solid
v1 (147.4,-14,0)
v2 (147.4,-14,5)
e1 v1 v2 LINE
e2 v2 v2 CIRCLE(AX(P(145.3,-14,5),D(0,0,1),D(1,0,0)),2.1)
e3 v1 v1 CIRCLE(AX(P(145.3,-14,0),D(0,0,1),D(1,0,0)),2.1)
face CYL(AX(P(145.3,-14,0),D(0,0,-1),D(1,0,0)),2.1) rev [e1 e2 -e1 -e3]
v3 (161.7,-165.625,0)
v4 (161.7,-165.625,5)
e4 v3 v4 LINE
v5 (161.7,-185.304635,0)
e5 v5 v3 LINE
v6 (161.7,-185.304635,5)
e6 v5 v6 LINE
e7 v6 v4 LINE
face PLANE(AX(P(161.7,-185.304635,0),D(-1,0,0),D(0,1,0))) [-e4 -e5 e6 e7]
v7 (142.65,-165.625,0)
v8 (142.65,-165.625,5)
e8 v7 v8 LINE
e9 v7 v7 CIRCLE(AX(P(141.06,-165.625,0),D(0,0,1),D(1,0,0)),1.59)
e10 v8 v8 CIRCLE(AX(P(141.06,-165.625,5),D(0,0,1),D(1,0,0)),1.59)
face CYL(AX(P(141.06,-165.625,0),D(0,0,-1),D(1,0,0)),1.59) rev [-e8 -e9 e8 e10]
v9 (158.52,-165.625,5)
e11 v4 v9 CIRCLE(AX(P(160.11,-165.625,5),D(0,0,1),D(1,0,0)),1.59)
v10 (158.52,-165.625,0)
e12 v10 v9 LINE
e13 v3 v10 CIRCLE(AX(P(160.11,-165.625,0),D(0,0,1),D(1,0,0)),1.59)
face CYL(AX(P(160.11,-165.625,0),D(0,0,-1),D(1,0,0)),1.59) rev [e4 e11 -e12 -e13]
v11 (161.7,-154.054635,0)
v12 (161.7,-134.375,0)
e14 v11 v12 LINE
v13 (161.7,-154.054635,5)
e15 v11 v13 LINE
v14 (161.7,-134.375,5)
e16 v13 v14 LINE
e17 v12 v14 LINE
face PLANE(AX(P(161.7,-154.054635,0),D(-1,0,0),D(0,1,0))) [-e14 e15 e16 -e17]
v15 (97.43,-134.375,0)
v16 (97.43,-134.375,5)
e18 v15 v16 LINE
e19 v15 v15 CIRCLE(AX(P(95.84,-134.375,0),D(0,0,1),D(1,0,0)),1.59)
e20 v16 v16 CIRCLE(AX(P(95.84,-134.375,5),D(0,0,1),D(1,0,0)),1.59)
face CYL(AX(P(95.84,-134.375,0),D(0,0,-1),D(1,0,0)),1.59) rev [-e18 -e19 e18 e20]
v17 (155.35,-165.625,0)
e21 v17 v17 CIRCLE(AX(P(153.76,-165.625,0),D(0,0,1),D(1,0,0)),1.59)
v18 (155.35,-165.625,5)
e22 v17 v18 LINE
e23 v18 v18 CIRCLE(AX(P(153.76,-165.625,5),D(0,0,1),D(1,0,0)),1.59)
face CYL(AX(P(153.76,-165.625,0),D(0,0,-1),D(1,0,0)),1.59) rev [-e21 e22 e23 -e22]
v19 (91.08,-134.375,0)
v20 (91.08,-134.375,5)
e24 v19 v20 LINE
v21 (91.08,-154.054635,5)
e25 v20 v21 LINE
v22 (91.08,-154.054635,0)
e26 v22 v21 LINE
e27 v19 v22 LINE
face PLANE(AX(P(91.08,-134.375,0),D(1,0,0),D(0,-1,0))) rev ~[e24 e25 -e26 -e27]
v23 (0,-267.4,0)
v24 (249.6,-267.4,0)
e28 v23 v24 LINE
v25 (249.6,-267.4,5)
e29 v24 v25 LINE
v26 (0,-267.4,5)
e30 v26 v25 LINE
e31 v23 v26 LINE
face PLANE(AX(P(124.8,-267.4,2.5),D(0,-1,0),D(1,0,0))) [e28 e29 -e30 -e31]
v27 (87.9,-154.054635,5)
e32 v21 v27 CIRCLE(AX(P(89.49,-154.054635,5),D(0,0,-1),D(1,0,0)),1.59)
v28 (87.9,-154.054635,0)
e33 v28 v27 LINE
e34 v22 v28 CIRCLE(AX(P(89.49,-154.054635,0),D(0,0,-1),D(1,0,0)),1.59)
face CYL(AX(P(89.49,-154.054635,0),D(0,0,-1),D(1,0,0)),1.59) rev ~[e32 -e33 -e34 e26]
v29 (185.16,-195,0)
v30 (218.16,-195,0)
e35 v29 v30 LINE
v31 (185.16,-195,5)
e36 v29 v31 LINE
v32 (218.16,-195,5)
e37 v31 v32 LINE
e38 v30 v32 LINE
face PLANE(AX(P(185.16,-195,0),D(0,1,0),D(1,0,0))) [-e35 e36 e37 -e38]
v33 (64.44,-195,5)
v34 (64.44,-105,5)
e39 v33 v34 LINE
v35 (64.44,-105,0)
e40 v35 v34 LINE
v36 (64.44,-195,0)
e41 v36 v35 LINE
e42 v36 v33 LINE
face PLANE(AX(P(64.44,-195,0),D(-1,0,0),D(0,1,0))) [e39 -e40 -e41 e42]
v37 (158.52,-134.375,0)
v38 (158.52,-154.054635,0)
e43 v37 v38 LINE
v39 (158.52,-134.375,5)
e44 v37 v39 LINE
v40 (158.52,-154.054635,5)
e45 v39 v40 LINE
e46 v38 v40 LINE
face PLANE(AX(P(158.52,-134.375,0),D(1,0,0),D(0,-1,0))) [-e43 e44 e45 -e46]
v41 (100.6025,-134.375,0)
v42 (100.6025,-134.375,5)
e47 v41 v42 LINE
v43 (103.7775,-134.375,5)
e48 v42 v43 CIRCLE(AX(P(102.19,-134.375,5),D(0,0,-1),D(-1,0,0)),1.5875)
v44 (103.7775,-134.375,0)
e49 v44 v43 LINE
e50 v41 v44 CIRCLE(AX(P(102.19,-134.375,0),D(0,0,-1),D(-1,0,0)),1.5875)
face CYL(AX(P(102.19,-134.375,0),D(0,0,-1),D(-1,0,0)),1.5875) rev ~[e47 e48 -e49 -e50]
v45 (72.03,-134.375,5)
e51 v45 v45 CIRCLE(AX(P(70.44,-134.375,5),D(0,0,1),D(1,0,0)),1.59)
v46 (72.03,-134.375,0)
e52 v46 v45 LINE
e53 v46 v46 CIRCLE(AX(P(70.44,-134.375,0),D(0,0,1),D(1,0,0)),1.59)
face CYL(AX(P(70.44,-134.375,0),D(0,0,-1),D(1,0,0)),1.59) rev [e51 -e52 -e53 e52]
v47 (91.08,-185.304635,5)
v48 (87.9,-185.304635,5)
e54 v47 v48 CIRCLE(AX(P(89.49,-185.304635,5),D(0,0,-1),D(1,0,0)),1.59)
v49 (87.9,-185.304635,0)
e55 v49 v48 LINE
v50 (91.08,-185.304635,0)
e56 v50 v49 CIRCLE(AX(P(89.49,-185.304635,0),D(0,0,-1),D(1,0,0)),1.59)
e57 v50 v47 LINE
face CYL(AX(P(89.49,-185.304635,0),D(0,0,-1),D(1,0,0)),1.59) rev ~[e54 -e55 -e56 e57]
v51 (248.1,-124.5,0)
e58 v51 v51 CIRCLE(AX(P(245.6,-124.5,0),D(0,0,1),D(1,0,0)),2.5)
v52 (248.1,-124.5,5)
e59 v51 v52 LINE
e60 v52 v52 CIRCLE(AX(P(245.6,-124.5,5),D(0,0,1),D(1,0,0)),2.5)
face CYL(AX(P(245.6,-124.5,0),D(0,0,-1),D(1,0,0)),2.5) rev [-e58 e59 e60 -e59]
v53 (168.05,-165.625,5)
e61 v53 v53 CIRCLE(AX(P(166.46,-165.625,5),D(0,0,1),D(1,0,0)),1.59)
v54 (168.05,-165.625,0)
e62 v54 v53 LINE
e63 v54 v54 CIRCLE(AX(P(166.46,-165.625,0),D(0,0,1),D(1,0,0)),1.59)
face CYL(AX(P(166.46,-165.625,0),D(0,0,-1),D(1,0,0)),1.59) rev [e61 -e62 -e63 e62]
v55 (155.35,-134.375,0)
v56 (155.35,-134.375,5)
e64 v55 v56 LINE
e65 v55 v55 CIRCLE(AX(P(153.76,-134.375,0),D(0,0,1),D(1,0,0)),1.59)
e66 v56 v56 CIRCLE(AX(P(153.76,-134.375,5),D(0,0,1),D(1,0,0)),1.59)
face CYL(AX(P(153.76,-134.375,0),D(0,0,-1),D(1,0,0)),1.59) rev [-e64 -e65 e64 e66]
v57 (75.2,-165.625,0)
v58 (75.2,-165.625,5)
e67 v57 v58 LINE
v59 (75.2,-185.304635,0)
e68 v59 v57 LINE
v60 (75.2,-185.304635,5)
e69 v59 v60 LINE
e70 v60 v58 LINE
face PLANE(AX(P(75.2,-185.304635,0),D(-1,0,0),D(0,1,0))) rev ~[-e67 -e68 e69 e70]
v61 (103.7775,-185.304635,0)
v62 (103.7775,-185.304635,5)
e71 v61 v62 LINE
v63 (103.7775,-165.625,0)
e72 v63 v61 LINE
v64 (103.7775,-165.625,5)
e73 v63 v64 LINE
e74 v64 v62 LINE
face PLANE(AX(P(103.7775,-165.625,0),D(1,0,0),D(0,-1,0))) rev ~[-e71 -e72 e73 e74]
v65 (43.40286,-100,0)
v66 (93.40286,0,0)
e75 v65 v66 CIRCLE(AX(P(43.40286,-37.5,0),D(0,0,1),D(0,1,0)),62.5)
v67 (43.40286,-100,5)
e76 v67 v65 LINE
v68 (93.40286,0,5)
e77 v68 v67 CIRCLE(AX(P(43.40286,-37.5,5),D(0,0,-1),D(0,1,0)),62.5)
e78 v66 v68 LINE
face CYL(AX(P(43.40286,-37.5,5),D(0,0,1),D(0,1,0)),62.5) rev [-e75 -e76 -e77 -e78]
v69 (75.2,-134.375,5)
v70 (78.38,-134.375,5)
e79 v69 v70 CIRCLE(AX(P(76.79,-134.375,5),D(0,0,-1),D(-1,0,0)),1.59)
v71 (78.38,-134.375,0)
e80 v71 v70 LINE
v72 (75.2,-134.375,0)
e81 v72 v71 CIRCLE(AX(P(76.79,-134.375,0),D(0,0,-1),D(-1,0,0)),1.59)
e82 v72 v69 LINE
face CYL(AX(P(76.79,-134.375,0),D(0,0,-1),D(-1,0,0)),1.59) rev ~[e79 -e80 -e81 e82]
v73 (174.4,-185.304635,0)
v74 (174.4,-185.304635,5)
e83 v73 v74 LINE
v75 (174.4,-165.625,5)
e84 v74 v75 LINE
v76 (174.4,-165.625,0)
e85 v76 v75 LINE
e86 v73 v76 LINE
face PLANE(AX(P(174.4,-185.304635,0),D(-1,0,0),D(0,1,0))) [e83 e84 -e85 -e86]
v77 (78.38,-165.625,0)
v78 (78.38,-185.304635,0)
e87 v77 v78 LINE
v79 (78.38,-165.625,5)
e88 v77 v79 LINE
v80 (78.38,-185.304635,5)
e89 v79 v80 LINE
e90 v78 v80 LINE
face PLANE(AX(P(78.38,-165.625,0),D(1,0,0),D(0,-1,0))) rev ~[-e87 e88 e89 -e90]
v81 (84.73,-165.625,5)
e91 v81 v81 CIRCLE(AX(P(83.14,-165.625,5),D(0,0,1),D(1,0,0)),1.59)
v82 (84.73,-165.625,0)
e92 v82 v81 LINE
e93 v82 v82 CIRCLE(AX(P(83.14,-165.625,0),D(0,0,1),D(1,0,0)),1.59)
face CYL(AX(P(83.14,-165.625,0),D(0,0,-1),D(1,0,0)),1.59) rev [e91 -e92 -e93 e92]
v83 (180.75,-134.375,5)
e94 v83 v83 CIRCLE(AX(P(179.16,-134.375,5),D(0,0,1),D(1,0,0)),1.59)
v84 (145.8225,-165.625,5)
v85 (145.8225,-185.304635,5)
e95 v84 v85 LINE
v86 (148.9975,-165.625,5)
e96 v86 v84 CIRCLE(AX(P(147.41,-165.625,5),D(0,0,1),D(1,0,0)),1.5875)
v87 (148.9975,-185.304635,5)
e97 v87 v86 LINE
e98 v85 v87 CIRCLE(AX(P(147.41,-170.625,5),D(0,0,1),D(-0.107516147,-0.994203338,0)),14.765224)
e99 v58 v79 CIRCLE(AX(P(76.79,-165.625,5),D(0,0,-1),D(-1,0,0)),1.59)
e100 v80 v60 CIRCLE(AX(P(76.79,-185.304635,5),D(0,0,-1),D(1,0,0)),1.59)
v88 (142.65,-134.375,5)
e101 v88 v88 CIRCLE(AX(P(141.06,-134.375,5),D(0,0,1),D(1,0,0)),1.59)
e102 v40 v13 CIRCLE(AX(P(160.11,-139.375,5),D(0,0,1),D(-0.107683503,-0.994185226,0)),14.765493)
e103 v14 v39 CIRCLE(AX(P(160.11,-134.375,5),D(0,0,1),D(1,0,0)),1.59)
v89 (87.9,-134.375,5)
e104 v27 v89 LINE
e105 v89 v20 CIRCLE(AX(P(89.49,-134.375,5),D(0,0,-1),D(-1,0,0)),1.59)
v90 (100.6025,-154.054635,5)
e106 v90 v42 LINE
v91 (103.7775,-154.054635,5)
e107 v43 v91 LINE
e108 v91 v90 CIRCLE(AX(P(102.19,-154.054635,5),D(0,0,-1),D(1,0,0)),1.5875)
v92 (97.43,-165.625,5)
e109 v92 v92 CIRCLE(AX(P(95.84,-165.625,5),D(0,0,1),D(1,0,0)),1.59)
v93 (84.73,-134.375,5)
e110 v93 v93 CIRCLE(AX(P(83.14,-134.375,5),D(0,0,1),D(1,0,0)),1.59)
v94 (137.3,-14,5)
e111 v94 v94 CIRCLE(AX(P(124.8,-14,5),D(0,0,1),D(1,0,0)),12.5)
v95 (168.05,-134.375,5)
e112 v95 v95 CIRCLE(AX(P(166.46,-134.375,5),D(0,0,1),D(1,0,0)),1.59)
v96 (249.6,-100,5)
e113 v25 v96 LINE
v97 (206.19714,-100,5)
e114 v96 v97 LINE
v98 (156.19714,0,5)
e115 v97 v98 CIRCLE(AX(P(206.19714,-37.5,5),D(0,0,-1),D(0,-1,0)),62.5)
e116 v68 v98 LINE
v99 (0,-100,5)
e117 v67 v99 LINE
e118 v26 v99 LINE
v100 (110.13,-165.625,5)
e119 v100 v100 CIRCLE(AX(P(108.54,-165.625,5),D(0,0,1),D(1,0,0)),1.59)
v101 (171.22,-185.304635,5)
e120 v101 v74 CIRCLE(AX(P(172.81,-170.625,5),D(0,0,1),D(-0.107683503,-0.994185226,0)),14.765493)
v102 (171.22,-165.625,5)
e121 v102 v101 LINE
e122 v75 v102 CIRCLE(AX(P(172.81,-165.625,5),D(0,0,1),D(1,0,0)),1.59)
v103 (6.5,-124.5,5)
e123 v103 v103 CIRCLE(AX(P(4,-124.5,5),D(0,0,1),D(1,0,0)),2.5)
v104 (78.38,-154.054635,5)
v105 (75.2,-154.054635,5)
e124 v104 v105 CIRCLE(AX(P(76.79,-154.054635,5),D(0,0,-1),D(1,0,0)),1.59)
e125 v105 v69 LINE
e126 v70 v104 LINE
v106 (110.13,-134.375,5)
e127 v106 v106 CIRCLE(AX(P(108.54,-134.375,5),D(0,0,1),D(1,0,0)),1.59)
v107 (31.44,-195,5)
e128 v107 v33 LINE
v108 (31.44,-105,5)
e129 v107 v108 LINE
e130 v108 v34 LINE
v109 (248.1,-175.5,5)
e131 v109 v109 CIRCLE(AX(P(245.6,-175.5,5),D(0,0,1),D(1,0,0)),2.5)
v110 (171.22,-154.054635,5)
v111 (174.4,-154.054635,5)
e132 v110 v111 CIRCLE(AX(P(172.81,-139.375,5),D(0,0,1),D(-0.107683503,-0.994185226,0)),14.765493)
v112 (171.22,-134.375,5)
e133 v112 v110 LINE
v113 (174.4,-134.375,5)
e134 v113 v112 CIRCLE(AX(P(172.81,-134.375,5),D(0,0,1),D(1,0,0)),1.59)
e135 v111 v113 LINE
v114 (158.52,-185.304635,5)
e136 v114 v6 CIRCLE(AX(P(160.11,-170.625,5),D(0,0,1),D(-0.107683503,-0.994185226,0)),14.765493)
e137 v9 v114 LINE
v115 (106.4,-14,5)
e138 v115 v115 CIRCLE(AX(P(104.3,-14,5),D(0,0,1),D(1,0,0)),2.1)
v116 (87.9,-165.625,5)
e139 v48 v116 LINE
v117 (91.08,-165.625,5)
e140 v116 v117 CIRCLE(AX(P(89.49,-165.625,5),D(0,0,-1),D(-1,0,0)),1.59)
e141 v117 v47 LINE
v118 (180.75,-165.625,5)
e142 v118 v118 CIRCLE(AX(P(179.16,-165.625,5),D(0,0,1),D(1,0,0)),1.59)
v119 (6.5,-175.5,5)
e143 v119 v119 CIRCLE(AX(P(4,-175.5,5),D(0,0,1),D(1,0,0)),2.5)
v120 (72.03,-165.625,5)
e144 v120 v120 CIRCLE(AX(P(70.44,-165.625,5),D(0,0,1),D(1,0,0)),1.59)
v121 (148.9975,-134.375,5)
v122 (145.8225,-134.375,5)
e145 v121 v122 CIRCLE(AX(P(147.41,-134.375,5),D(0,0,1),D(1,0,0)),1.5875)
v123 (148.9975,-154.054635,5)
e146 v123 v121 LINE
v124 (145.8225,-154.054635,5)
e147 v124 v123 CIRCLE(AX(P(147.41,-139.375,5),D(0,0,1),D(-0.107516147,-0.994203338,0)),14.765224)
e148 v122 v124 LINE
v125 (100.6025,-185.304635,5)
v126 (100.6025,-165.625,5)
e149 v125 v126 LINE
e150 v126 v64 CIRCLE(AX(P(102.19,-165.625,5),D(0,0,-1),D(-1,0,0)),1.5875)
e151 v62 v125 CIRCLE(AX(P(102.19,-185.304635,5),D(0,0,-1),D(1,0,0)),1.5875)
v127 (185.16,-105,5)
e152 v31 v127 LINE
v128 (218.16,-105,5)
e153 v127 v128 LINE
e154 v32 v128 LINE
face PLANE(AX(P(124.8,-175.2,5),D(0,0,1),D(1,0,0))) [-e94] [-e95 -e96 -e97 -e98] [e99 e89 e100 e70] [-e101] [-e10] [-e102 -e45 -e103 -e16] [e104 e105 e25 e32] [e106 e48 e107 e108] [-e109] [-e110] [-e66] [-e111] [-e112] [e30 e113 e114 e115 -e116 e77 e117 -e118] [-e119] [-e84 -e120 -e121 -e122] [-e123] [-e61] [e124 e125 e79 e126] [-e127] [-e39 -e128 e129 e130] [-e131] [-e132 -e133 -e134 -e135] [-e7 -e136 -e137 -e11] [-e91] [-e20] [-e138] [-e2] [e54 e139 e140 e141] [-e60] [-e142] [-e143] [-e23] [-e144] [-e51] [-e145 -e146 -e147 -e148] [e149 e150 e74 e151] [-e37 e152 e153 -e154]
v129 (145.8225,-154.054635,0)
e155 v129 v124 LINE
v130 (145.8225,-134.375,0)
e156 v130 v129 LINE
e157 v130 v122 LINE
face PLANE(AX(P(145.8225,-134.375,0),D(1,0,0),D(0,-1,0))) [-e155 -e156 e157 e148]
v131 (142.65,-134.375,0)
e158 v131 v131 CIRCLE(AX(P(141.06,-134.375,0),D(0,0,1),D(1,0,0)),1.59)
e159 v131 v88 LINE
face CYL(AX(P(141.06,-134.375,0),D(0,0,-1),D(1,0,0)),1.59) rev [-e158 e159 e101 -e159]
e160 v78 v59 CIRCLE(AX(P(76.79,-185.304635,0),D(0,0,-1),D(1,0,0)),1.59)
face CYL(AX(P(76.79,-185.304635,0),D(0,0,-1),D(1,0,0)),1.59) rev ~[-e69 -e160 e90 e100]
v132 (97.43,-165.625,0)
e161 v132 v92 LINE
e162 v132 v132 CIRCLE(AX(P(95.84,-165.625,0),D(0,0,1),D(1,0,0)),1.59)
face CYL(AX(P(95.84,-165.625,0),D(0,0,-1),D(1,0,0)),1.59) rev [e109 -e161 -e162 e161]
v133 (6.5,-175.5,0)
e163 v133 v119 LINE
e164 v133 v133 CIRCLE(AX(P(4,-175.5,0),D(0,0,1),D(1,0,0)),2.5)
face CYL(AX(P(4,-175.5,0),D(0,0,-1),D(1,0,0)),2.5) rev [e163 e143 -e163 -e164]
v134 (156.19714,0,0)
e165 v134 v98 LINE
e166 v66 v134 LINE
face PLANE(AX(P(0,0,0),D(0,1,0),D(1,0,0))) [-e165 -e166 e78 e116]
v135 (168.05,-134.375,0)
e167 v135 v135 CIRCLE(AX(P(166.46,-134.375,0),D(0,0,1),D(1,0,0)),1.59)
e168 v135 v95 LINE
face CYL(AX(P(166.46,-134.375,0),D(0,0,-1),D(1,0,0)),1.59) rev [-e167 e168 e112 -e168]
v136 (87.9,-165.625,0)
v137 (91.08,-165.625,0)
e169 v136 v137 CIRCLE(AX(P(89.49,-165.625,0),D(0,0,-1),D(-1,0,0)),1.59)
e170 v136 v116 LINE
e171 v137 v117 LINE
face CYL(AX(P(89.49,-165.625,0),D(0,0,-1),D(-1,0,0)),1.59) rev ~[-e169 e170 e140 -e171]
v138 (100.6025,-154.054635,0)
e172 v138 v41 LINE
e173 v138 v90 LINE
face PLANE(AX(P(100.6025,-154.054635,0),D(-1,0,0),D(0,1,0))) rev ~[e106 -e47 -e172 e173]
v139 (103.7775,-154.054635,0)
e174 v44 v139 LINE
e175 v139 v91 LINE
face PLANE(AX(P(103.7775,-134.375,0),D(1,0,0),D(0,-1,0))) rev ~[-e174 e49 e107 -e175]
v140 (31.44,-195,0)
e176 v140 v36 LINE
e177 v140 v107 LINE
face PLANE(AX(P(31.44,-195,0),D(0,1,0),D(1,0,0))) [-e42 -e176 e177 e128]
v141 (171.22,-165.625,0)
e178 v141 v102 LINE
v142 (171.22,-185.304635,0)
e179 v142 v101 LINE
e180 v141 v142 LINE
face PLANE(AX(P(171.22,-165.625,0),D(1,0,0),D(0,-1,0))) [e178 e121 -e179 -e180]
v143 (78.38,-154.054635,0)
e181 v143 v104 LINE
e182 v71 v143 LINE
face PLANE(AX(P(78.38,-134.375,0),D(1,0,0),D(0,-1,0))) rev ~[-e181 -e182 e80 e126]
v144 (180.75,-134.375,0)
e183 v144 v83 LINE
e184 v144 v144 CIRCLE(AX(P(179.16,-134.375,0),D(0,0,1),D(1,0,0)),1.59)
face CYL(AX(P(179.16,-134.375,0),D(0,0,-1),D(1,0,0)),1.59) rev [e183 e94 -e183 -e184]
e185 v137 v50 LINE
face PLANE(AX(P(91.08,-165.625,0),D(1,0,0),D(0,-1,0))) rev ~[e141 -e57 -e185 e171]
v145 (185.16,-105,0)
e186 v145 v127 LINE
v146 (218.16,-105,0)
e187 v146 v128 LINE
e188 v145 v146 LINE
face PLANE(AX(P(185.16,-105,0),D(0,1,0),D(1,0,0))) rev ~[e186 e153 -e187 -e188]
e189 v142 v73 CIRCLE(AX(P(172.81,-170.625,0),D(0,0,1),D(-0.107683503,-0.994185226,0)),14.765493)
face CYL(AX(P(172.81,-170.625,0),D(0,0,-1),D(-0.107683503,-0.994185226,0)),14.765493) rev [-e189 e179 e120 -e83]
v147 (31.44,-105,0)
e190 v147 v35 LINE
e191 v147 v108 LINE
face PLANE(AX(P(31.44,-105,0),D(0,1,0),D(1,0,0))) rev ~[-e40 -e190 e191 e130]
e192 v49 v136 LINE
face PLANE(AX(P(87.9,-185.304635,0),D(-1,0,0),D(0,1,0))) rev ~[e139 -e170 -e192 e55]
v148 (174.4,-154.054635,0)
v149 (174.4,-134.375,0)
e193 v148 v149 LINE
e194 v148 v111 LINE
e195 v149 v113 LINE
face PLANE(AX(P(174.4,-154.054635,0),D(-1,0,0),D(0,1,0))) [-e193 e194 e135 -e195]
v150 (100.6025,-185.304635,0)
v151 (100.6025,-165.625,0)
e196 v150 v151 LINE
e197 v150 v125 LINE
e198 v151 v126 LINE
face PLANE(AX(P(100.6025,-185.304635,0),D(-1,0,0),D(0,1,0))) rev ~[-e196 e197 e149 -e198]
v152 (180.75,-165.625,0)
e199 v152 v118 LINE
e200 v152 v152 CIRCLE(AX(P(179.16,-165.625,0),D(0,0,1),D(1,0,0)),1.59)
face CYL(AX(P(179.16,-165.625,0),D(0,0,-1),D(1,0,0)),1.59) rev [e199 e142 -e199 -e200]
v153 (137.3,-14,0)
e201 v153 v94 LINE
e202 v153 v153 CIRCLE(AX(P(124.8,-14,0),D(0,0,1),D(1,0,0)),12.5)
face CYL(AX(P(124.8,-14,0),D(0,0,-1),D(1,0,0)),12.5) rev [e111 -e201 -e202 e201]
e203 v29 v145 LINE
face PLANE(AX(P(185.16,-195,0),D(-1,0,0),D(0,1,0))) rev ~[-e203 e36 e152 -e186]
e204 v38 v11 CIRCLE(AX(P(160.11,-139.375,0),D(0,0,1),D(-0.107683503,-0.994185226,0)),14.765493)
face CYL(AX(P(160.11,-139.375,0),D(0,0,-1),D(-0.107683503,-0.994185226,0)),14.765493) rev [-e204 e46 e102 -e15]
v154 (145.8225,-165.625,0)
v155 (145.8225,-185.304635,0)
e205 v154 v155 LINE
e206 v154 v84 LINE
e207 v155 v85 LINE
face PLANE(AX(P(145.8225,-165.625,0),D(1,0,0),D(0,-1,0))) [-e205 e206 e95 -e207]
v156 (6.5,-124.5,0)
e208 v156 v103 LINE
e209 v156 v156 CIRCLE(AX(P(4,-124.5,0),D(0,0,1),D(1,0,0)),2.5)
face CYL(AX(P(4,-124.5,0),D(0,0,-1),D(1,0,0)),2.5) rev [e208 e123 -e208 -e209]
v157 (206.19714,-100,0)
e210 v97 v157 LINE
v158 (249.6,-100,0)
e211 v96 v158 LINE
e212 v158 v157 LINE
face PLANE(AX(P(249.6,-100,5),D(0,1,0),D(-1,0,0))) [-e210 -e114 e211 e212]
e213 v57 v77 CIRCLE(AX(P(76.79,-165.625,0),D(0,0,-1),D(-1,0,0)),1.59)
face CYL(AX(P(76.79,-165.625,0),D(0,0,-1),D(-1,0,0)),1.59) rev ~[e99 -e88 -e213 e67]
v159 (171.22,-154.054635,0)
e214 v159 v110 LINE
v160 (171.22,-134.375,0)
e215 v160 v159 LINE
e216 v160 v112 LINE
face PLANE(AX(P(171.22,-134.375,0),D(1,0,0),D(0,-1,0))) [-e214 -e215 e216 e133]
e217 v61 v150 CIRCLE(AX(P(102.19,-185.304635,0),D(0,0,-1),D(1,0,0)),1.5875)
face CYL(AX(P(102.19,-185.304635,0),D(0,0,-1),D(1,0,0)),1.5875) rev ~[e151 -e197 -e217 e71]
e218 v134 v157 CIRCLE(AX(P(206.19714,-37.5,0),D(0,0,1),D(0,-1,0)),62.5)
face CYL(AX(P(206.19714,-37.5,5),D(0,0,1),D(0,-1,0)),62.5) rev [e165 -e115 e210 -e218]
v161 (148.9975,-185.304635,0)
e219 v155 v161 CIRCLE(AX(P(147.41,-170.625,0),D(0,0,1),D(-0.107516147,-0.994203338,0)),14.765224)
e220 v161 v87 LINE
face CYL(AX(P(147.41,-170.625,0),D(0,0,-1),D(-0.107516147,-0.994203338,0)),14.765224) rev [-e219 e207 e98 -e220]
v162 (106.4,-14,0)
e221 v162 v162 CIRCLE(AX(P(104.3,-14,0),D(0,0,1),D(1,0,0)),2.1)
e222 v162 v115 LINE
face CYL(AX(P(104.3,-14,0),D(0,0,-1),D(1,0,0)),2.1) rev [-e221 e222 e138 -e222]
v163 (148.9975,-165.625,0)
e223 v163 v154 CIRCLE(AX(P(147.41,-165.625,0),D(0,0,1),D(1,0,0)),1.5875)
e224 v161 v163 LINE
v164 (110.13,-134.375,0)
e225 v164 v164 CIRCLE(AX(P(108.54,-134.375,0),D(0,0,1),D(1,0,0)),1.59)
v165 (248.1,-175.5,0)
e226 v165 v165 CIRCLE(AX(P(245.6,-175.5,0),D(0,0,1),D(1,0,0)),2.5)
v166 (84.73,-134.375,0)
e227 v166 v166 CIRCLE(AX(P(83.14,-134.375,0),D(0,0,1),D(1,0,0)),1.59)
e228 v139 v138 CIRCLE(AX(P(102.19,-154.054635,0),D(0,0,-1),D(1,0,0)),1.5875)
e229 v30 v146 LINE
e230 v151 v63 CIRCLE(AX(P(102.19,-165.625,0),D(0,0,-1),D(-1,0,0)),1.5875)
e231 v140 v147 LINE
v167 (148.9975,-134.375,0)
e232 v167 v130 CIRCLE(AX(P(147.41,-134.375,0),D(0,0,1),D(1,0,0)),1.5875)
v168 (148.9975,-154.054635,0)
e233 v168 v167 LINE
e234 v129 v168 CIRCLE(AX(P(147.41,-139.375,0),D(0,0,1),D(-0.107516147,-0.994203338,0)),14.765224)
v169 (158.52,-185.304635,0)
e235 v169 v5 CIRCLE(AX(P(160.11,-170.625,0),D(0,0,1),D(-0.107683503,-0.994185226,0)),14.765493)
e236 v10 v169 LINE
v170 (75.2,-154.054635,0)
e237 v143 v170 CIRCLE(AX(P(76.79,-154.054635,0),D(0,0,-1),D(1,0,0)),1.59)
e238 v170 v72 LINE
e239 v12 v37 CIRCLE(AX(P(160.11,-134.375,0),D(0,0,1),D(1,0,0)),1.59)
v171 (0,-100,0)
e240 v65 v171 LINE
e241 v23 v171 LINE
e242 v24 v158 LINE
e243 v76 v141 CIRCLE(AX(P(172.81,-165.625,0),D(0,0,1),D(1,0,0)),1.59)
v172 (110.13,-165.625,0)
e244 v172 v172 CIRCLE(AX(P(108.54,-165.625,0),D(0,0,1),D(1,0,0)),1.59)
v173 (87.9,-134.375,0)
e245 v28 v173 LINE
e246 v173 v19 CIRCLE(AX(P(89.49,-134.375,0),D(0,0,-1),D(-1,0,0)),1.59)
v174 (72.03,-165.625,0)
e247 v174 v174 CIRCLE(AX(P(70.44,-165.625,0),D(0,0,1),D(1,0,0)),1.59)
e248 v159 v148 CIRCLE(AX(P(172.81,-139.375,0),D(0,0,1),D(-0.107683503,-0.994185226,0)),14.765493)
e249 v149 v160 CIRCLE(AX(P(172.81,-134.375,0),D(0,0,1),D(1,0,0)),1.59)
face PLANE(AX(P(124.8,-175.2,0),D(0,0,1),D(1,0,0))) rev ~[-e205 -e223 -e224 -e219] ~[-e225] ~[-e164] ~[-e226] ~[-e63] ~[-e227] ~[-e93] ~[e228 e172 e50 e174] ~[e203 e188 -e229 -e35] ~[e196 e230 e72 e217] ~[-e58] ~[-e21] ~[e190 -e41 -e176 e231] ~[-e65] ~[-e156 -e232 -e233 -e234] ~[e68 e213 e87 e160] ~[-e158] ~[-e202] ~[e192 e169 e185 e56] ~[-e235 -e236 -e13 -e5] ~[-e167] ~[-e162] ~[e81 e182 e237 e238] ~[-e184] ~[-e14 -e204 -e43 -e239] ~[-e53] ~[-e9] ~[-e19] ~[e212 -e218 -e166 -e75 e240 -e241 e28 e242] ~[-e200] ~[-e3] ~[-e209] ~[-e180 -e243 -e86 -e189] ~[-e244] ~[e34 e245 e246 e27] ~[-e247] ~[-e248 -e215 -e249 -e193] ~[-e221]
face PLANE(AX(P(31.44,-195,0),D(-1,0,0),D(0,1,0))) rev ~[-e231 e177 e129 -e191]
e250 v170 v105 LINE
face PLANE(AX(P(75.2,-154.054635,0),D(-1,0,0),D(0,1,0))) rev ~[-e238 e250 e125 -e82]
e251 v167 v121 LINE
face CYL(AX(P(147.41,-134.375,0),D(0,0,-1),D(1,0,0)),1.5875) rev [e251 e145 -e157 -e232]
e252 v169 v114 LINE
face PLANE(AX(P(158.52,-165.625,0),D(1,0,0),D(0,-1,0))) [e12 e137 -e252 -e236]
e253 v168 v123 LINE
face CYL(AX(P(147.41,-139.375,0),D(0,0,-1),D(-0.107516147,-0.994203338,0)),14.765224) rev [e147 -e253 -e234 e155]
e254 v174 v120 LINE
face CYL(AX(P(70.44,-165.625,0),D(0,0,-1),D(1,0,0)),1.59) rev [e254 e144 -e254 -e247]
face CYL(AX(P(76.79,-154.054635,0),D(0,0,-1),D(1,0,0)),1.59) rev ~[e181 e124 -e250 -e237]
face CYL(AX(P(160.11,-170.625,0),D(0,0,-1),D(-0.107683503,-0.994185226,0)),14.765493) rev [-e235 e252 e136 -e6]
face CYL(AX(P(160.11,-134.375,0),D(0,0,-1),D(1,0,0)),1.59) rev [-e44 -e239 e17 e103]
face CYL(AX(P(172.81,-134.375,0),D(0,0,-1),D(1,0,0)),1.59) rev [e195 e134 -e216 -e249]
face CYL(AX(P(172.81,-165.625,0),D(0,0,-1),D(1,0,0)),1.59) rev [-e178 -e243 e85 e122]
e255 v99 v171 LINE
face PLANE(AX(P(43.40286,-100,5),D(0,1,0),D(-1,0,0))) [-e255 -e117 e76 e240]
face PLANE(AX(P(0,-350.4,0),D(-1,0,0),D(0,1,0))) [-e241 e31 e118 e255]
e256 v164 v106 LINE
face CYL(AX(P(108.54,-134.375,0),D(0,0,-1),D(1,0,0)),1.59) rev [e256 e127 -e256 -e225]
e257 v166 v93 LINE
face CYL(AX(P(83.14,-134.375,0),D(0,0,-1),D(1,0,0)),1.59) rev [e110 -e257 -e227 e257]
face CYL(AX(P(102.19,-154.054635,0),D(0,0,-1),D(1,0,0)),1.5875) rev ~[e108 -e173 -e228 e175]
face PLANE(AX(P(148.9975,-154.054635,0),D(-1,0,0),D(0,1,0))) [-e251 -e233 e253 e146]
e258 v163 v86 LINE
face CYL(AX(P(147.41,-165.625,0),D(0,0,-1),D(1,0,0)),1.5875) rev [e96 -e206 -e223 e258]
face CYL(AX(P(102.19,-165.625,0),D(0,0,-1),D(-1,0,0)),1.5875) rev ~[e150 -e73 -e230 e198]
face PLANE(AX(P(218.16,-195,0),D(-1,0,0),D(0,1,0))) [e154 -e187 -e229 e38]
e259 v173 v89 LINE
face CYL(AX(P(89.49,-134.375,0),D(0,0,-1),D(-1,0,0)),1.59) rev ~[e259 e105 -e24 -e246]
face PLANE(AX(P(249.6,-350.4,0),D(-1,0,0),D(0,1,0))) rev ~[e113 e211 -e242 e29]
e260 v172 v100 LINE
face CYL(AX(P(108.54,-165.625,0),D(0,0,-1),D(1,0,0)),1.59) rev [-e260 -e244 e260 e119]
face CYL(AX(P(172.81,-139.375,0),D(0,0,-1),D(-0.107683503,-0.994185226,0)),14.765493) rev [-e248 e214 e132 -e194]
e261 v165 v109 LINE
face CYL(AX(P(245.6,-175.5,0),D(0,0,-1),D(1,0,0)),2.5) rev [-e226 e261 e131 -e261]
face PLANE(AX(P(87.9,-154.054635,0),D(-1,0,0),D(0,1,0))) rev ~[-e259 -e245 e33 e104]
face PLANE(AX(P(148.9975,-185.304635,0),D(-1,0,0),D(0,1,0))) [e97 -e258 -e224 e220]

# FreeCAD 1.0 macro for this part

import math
import FreeCAD as App
import Part
import Sketcher
from FreeCAD import Vector


def add_polygon(sketch, points):
    """Adds a closed chain of lines whose ends are joined by coincident constraints."""
    first, n = sketch.GeometryCount, len(points)
    for a, b in zip(points, points[1:] + points[:1]):
        sketch.addGeometry(Part.LineSegment(App.Vector(*a, 0), App.Vector(*b, 0)), False)
    for i in range(n):
        sketch.addConstraint(Sketcher.Constraint("Coincident", first + i, 2, first + (i + 1) % n, 1))

doc = App.newDocument("Part")
body = doc.addObject("PartDesign::Body", "Body")

# Sketch on XY plane
sketch1 = body.newObject("Sketcher::SketchObject", "Sketch")
sketch1.AttachmentSupport = (doc.getObject("XY_Plane"), [""])
sketch1.MapMode = "FlatFace"
add_polygon(sketch1, [(0, 0), (0, -350.4), (249.6, -350.4), (249.6, 0)])  # lines 0-3
sketch1.addGeometry(Part.Circle(Vector(4, -175.5, 0), Vector(0, 0, 1), 2.5), False)  # 4
add_polygon(sketch1, [(64.44, -195), (31.44, -195), (31.44, -105), (64.44, -105)])  # lines 5-8
sketch1.addGeometry(Part.ArcOfCircle(Part.Circle(Vector(76.79, -165.625, 0), Vector(0, 0, 1), 1.59), math.radians(0), math.radians(180)), False)  # 9
sketch1.addGeometry(Part.LineSegment(Vector(78.38, -165.625, 0), Vector(78.38, -185.304635, 0)), False)  # 10
sketch1.addGeometry(Part.ArcOfCircle(Part.Circle(Vector(76.79, -185.304635, 0), Vector(0, 0, 1), 1.59), math.radians(180), math.radians(360)), False)  # 11
sketch1.addGeometry(Part.LineSegment(Vector(75.2, -185.304635, 0), Vector(75.2, -165.625, 0)), False)  # 12
sketch1.addGeometry(Part.ArcOfCircle(Part.Circle(Vector(89.49, -165.625, 0), Vector(0, 0, 1), 1.59), math.radians(0), math.radians(180)), False)  # 13
sketch1.addGeometry(Part.LineSegment(Vector(91.08, -165.625, 0), Vector(91.08, -185.304635, 0)), False)  # 14
sketch1.addGeometry(Part.ArcOfCircle(Part.Circle(Vector(89.49, -185.304635, 0), Vector(0, 0, 1), 1.59), math.radians(180), math.radians(360)), False)  # 15
sketch1.addGeometry(Part.LineSegment(Vector(87.9, -185.304635, 0), Vector(87.9, -165.625, 0)), False)  # 16
sketch1.addGeometry(Part.ArcOfCircle(Part.Circle(Vector(102.19, -165.625, 0), Vector(0, 0, 1), 1.5875), math.radians(0), math.radians(180)), False)  # 17
sketch1.addGeometry(Part.LineSegment(Vector(103.7775, -165.625, 0), Vector(103.7775, -185.304635, 0)), False)  # 18
sketch1.addGeometry(Part.ArcOfCircle(Part.Circle(Vector(102.19, -185.304635, 0), Vector(0, 0, 1), 1.5875), math.radians(180), math.radians(360)), False)  # 19
sketch1.addGeometry(Part.LineSegment(Vector(100.6025, -185.304635, 0), Vector(100.6025, -165.625, 0)), False)  # 20
sketch1.addGeometry(Part.Circle(Vector(70.44, -165.625, 0), Vector(0, 0, 1), 1.59), False)  # 21
sketch1.addGeometry(Part.Circle(Vector(83.14, -165.625, 0), Vector(0, 0, 1), 1.59), False)  # 22
sketch1.addGeometry(Part.Circle(Vector(95.84, -165.625, 0), Vector(0, 0, 1), 1.59), False)  # 23
sketch1.addGeometry(Part.Circle(Vector(108.54, -165.625, 0), Vector(0, 0, 1), 1.59), False)  # 24
sketch1.addGeometry(Part.Circle(Vector(4, -124.5, 0), Vector(0, 0, 1), 2.5), False)  # 25
sketch1.addGeometry(Part.ArcOfCircle(Part.Circle(Vector(76.79, -134.375, 0), Vector(0, 0, 1), 1.59), math.radians(0), math.radians(180)), False)  # 26
sketch1.addGeometry(Part.LineSegment(Vector(78.38, -134.375, 0), Vector(78.38, -154.054635, 0)), False)  # 27
sketch1.addGeometry(Part.ArcOfCircle(Part.Circle(Vector(76.79, -154.054635, 0), Vector(0, 0, 1), 1.59), math.radians(180), math.radians(360)), False)  # 28
sketch1.addGeometry(Part.LineSegment(Vector(75.2, -154.054635, 0), Vector(75.2, -134.375, 0)), False)  # 29
sketch1.addGeometry(Part.ArcOfCircle(Part.Circle(Vector(89.49, -134.375, 0), Vector(0, 0, 1), 1.59), math.radians(0), math.radians(180)), False)  # 30
sketch1.addGeometry(Part.LineSegment(Vector(91.08, -134.375, 0), Vector(91.08, -154.054635, 0)), False)  # 31
sketch1.addGeometry(Part.ArcOfCircle(Part.Circle(Vector(89.49, -154.054635, 0), Vector(0, 0, 1), 1.59), math.radians(180), math.radians(360)), False)  # 32
sketch1.addGeometry(Part.LineSegment(Vector(87.9, -154.054635, 0), Vector(87.9, -134.375, 0)), False)  # 33
sketch1.addGeometry(Part.Circle(Vector(70.44, -134.375, 0), Vector(0, 0, 1), 1.59), False)  # 34
sketch1.addGeometry(Part.Circle(Vector(83.14, -134.375, 0), Vector(0, 0, 1), 1.59), False)  # 35
sketch1.addGeometry(Part.ArcOfCircle(Part.Circle(Vector(102.19, -134.375, 0), Vector(0, 0, 1), 1.5875), math.radians(0), math.radians(180)), False)  # 36
sketch1.addGeometry(Part.LineSegment(Vector(103.7775, -134.375, 0), Vector(103.7775, -154.054635, 0)), False)  # 37
sketch1.addGeometry(Part.ArcOfCircle(Part.Circle(Vector(102.19, -154.054635, 0), Vector(0, 0, 1), 1.5875), math.radians(180), math.radians(360)), False)  # 38
sketch1.addGeometry(Part.LineSegment(Vector(100.6025, -154.054635, 0), Vector(100.6025, -134.375, 0)), False)  # 39
sketch1.addGeometry(Part.Circle(Vector(95.84, -134.375, 0), Vector(0, 0, 1), 1.59), False)  # 40
sketch1.addGeometry(Part.Circle(Vector(108.54, -134.375, 0), Vector(0, 0, 1), 1.59), False)  # 41
sketch1.addGeometry(Part.LineSegment(Vector(145.8225, -185.304635, 0), Vector(145.8225, -165.625, 0)), False)  # 42
sketch1.addGeometry(Part.ArcOfCircle(Part.Circle(Vector(147.41, -165.625, 0), Vector(0, 0, 1), 1.5875), math.radians(0), math.radians(180)), False)  # 43
sketch1.addGeometry(Part.LineSegment(Vector(148.9975, -165.625, 0), Vector(148.9975, -185.304635, 0)), False)  # 44
sketch1.addGeometry(Part.ArcOfCircle(Part.Circle(Vector(147.41, -170.625, 0), Vector(0, 0, 1), 14.765224), math.radians(-96.172152), math.radians(-83.827848)), False)  # 45
sketch1.addGeometry(Part.LineSegment(Vector(158.52, -185.304635, 0), Vector(158.52, -165.625, 0)), False)  # 46
sketch1.addGeometry(Part.ArcOfCircle(Part.Circle(Vector(160.11, -165.625, 0), Vector(0, 0, 1), 1.59), math.radians(0), math.radians(180)), False)  # 47
sketch1.addGeometry(Part.LineSegment(Vector(161.7, -165.625, 0), Vector(161.7, -185.304635, 0)), False)  # 48
sketch1.addGeometry(Part.ArcOfCircle(Part.Circle(Vector(160.11, -170.625, 0), Vector(0, 0, 1), 14.765493), math.radians(-96.181797), math.radians(-83.818203)), False)  # 49
sketch1.addGeometry(Part.LineSegment(Vector(171.22, -185.304635, 0), Vector(171.22, -165.625, 0)), False)  # 50
sketch1.addGeometry(Part.ArcOfCircle(Part.Circle(Vector(172.81, -165.625, 0), Vector(0, 0, 1), 1.59), math.radians(0), math.radians(180)), False)  # 51
sketch1.addGeometry(Part.LineSegment(Vector(174.4, -165.625, 0), Vector(174.4, -185.304635, 0)), False)  # 52
sketch1.addGeometry(Part.ArcOfCircle(Part.Circle(Vector(172.81, -170.625, 0), Vector(0, 0, 1), 14.765493), math.radians(-96.181797), math.radians(-83.818203)), False)  # 53
sketch1.addGeometry(Part.Circle(Vector(141.06, -165.625, 0), Vector(0, 0, 1), 1.59), False)  # 54
sketch1.addGeometry(Part.Circle(Vector(153.76, -165.625, 0), Vector(0, 0, 1), 1.59), False)  # 55
sketch1.addGeometry(Part.Circle(Vector(166.46, -165.625, 0), Vector(0, 0, 1), 1.59), False)  # 56
sketch1.addGeometry(Part.Circle(Vector(179.16, -165.625, 0), Vector(0, 0, 1), 1.59), False)  # 57
sketch1.addGeometry(Part.Circle(Vector(245.6, -175.5, 0), Vector(0, 0, 1), 2.5), False)  # 58
add_polygon(sketch1, [(218.16, -195), (185.16, -195), (185.16, -105), (218.16, -105)])  # lines 59-62
sketch1.addGeometry(Part.LineSegment(Vector(145.8225, -154.054635, 0), Vector(145.8225, -134.375, 0)), False)  # 63
sketch1.addGeometry(Part.ArcOfCircle(Part.Circle(Vector(147.41, -134.375, 0), Vector(0, 0, 1), 1.5875), math.radians(0), math.radians(180)), False)  # 64
sketch1.addGeometry(Part.LineSegment(Vector(148.9975, -134.375, 0), Vector(148.9975, -154.054635, 0)), False)  # 65
sketch1.addGeometry(Part.ArcOfCircle(Part.Circle(Vector(147.41, -139.375, 0), Vector(0, 0, 1), 14.765224), math.radians(-96.172152), math.radians(-83.827848)), False)  # 66
sketch1.addGeometry(Part.Circle(Vector(141.06, -134.375, 0), Vector(0, 0, 1), 1.59), False)  # 67
sketch1.addGeometry(Part.Circle(Vector(153.76, -134.375, 0), Vector(0, 0, 1), 1.59), False)  # 68
sketch1.addGeometry(Part.LineSegment(Vector(158.52, -154.054635, 0), Vector(158.52, -134.375, 0)), False)  # 69
sketch1.addGeometry(Part.ArcOfCircle(Part.Circle(Vector(160.11, -134.375, 0), Vector(0, 0, 1), 1.59), math.radians(0), math.radians(180)), False)  # 70
sketch1.addGeometry(Part.LineSegment(Vector(161.7, -134.375, 0), Vector(161.7, -154.054635, 0)), False)  # 71
sketch1.addGeometry(Part.ArcOfCircle(Part.Circle(Vector(160.11, -139.375, 0), Vector(0, 0, 1), 14.765493), math.radians(-96.181797), math.radians(-83.818203)), False)  # 72
sketch1.addGeometry(Part.LineSegment(Vector(171.22, -154.054635, 0), Vector(171.22, -134.375, 0)), False)  # 73
sketch1.addGeometry(Part.ArcOfCircle(Part.Circle(Vector(172.81, -134.375, 0), Vector(0, 0, 1), 1.59), math.radians(0), math.radians(180)), False)  # 74
sketch1.addGeometry(Part.LineSegment(Vector(174.4, -134.375, 0), Vector(174.4, -154.054635, 0)), False)  # 75
sketch1.addGeometry(Part.ArcOfCircle(Part.Circle(Vector(172.81, -139.375, 0), Vector(0, 0, 1), 14.765493), math.radians(-96.181797), math.radians(-83.818203)), False)  # 76
sketch1.addGeometry(Part.Circle(Vector(166.46, -134.375, 0), Vector(0, 0, 1), 1.59), False)  # 77
sketch1.addGeometry(Part.Circle(Vector(179.16, -134.375, 0), Vector(0, 0, 1), 1.59), False)  # 78
sketch1.addGeometry(Part.Circle(Vector(245.6, -124.5, 0), Vector(0, 0, 1), 2.5), False)  # 79
sketch1.addGeometry(Part.Circle(Vector(104.3, -14, 0), Vector(0, 0, 1), 2.1), False)  # 80
sketch1.addGeometry(Part.Circle(Vector(124.8, -14, 0), Vector(0, 0, 1), 12.5), False)  # 81
sketch1.addGeometry(Part.Circle(Vector(145.3, -14, 0), Vector(0, 0, 1), 2.1), False)  # 82
sketch1.addConstraint([
    Sketcher.Constraint("Tangent", 9, 1, 10, 1),
    Sketcher.Constraint("Tangent", 10, 2, 11, 2),
    Sketcher.Constraint("Tangent", 11, 1, 12, 1),
    Sketcher.Constraint("Tangent", 12, 2, 9, 2),
    Sketcher.Constraint("Tangent", 13, 1, 14, 1),
    Sketcher.Constraint("Tangent", 14, 2, 15, 2),
    Sketcher.Constraint("Tangent", 15, 1, 16, 1),
    Sketcher.Constraint("Tangent", 16, 2, 13, 2),
    Sketcher.Constraint("Tangent", 17, 1, 18, 1),
    Sketcher.Constraint("Tangent", 18, 2, 19, 2),
    Sketcher.Constraint("Tangent", 19, 1, 20, 1),
    Sketcher.Constraint("Tangent", 20, 2, 17, 2),
    Sketcher.Constraint("Tangent", 26, 1, 27, 1),
    Sketcher.Constraint("Tangent", 27, 2, 28, 2),
    Sketcher.Constraint("Tangent", 28, 1, 29, 1),
    Sketcher.Constraint("Tangent", 29, 2, 26, 2),
    Sketcher.Constraint("Tangent", 30, 1, 31, 1),
    Sketcher.Constraint("Tangent", 31, 2, 32, 2),
    Sketcher.Constraint("Tangent", 32, 1, 33, 1),
    Sketcher.Constraint("Tangent", 33, 2, 30, 2),
    Sketcher.Constraint("Tangent", 36, 1, 37, 1),
    Sketcher.Constraint("Tangent", 37, 2, 38, 2),
    Sketcher.Constraint("Tangent", 38, 1, 39, 1),
    Sketcher.Constraint("Tangent", 39, 2, 36, 2),
    Sketcher.Constraint("Tangent", 42, 2, 43, 2),
    Sketcher.Constraint("Tangent", 43, 1, 44, 1),
    Sketcher.Constraint("Coincident", 44, 2, 45, 2),
    Sketcher.Constraint("Coincident", 45, 1, 42, 1),
    Sketcher.Constraint("Tangent", 46, 2, 47, 2),
    Sketcher.Constraint("Tangent", 47, 1, 48, 1),
    Sketcher.Constraint("Coincident", 48, 2, 49, 2),
    Sketcher.Constraint("Coincident", 49, 1, 46, 1),
    Sketcher.Constraint("Tangent", 50, 2, 51, 2),
    Sketcher.Constraint("Tangent", 51, 1, 52, 1),
    Sketcher.Constraint("Coincident", 52, 2, 53, 2),
    Sketcher.Constraint("Coincident", 53, 1, 50, 1),
    Sketcher.Constraint("Tangent", 63, 2, 64, 2),
    Sketcher.Constraint("Tangent", 64, 1, 65, 1),
    Sketcher.Constraint("Coincident", 65, 2, 66, 2),
    Sketcher.Constraint("Coincident", 66, 1, 63, 1),
    Sketcher.Constraint("Tangent", 69, 2, 70, 2),
    Sketcher.Constraint("Tangent", 70, 1, 71, 1),
    Sketcher.Constraint("Coincident", 71, 2, 72, 2),
    Sketcher.Constraint("Coincident", 72, 1, 69, 1),
    Sketcher.Constraint("Tangent", 73, 2, 74, 2),
    Sketcher.Constraint("Tangent", 74, 1, 75, 1),
    Sketcher.Constraint("Coincident", 75, 2, 76, 2),
    Sketcher.Constraint("Coincident", 76, 1, 73, 1),
    Sketcher.Constraint("Vertical", 0),
    Sketcher.Constraint("Horizontal", 1),
    Sketcher.Constraint("Vertical", 2),
    Sketcher.Constraint("Horizontal", 3),
    Sketcher.Constraint("Horizontal", 5),
    Sketcher.Constraint("Vertical", 6),
    Sketcher.Constraint("Horizontal", 7),
    Sketcher.Constraint("Vertical", 8),
    Sketcher.Constraint("Vertical", 10),
    Sketcher.Constraint("Vertical", 12),
    Sketcher.Constraint("Vertical", 14),
    Sketcher.Constraint("Vertical", 16),
    Sketcher.Constraint("Vertical", 18),
    Sketcher.Constraint("Vertical", 20),
    Sketcher.Constraint("Vertical", 27),
    Sketcher.Constraint("Vertical", 29),
    Sketcher.Constraint("Vertical", 31),
    Sketcher.Constraint("Vertical", 33),
    Sketcher.Constraint("Vertical", 37),
    Sketcher.Constraint("Vertical", 39),
    Sketcher.Constraint("Vertical", 42),
    Sketcher.Constraint("Vertical", 44),
    Sketcher.Constraint("Vertical", 46),
    Sketcher.Constraint("Vertical", 48),
    Sketcher.Constraint("Vertical", 50),
    Sketcher.Constraint("Vertical", 52),
    Sketcher.Constraint("Horizontal", 59),
    Sketcher.Constraint("Vertical", 60),
    Sketcher.Constraint("Horizontal", 61),
    Sketcher.Constraint("Vertical", 62),
    Sketcher.Constraint("Vertical", 63),
    Sketcher.Constraint("Vertical", 65),
    Sketcher.Constraint("Vertical", 69),
    Sketcher.Constraint("Vertical", 71),
    Sketcher.Constraint("Vertical", 73),
    Sketcher.Constraint("Vertical", 75),
    Sketcher.Constraint("Coincident", 3, 2, -1, 1),
    Sketcher.Constraint("Equal", 11, 13),
    Sketcher.Constraint("Equal", 15, 21),
    Sketcher.Constraint("Equal", 21, 22),
    Sketcher.Constraint("Equal", 22, 23),
    Sketcher.Constraint("Equal", 23, 24),
    Sketcher.Constraint("Equal", 4, 25),
    Sketcher.Constraint("Equal", 24, 26),
    Sketcher.Constraint("Equal", 28, 30),
    Sketcher.Constraint("Equal", 32, 34),
    Sketcher.Constraint("Equal", 34, 35),
    Sketcher.Constraint("Equal", 19, 36),
    Sketcher.Constraint("Equal", 35, 40),
    Sketcher.Constraint("Equal", 40, 41),
    Sketcher.Constraint("Equal", 38, 43),
    Sketcher.Constraint("Equal", 41, 47),
    Sketcher.Constraint("Equal", 47, 51),
    Sketcher.Constraint("Equal", 49, 53),
    Sketcher.Constraint("Equal", 51, 54),
    Sketcher.Constraint("Equal", 54, 55),
    Sketcher.Constraint("Equal", 55, 56),
    Sketcher.Constraint("Equal", 56, 57),
    Sketcher.Constraint("Equal", 25, 58),
    Sketcher.Constraint("Equal", 43, 64),
    Sketcher.Constraint("Equal", 45, 66),
    Sketcher.Constraint("Equal", 57, 67),
    Sketcher.Constraint("Equal", 67, 68),
    Sketcher.Constraint("Equal", 68, 70),
    Sketcher.Constraint("Equal", 53, 72),
    Sketcher.Constraint("Equal", 70, 74),
    Sketcher.Constraint("Equal", 72, 76),
    Sketcher.Constraint("Equal", 74, 77),
    Sketcher.Constraint("Equal", 77, 78),
    Sketcher.Constraint("Equal", 58, 79),
    Sketcher.Constraint("Equal", 80, 82),
    Sketcher.Constraint("Horizontal", 9, 3, 13, 3),
    Sketcher.Constraint("Horizontal", 11, 3, 15, 3),
    Sketcher.Constraint("Horizontal", 13, 3, 17, 3),
    Sketcher.Constraint("Horizontal", 15, 3, 19, 3),
    Sketcher.Constraint("Horizontal", 17, 3, 21, 3),
    Sketcher.Constraint("Horizontal", 21, 3, 22, 3),
    Sketcher.Constraint("Horizontal", 22, 3, 23, 3),
    Sketcher.Constraint("Horizontal", 23, 3, 24, 3),
    Sketcher.Constraint("Horizontal", 26, 3, 30, 3),
    Sketcher.Constraint("Horizontal", 28, 3, 32, 3),
    Sketcher.Constraint("Horizontal", 30, 3, 34, 3),
    Sketcher.Constraint("Horizontal", 34, 3, 35, 3),
    Sketcher.Constraint("Horizontal", 35, 3, 36, 3),
    Sketcher.Constraint("Horizontal", 32, 3, 38, 3),
    Sketcher.Constraint("Horizontal", 36, 3, 40, 3),
    Sketcher.Constraint("Horizontal", 40, 3, 41, 3),
    Sketcher.Constraint("Horizontal", 24, 3, 43, 3),
    Sketcher.Constraint("Horizontal", 43, 3, 47, 3),
    Sketcher.Constraint("Horizontal", 45, 3, 49, 3),
    Sketcher.Constraint("Horizontal", 47, 3, 51, 3),
    Sketcher.Constraint("Horizontal", 49, 3, 53, 3),
    Sketcher.Constraint("Horizontal", 51, 3, 54, 3),
    Sketcher.Constraint("Horizontal", 54, 3, 55, 3),
    Sketcher.Constraint("Horizontal", 55, 3, 56, 3),
    Sketcher.Constraint("Horizontal", 56, 3, 57, 3),
    Sketcher.Constraint("Horizontal", 4, 3, 58, 3),
    Sketcher.Constraint("Horizontal", 41, 3, 64, 3),
    Sketcher.Constraint("Horizontal", 64, 3, 67, 3),
    Sketcher.Constraint("Horizontal", 67, 3, 68, 3),
    Sketcher.Constraint("Horizontal", 68, 3, 70, 3),
    Sketcher.Constraint("Horizontal", 66, 3, 72, 3),
    Sketcher.Constraint("Horizontal", 70, 3, 74, 3),
    Sketcher.Constraint("Horizontal", 72, 3, 76, 3),
    Sketcher.Constraint("Horizontal", 74, 3, 77, 3),
    Sketcher.Constraint("Horizontal", 77, 3, 78, 3),
    Sketcher.Constraint("Horizontal", 25, 3, 79, 3),
    Sketcher.Constraint("Horizontal", 80, 3, 81, 3),
    Sketcher.Constraint("Horizontal", 81, 3, 82, 3),
    Sketcher.Constraint("Horizontal", 19, 1, 44, 2),
    Sketcher.Constraint("Horizontal", 44, 2, 45, 1),
    Sketcher.Constraint("Horizontal", 45, 1, 48, 2),
    Sketcher.Constraint("Horizontal", 48, 2, 49, 1),
    Sketcher.Constraint("Horizontal", 49, 1, 52, 2),
    Sketcher.Constraint("Horizontal", 8, 2, 59, 2),
    Sketcher.Constraint("Horizontal", 7, 2, 60, 2),
    Sketcher.Constraint("Horizontal", 38, 1, 65, 2),
    Sketcher.Constraint("Horizontal", 65, 2, 66, 1),
    Sketcher.Constraint("Horizontal", 66, 1, 71, 2),
    Sketcher.Constraint("Horizontal", 72, 1, 75, 2),
    Sketcher.Constraint("Vertical", 4, 3, 25, 3),
    Sketcher.Constraint("Vertical", 11, 3, 26, 3),
    Sketcher.Constraint("Vertical", 15, 3, 30, 3),
    Sketcher.Constraint("Vertical", 21, 3, 34, 3),
    Sketcher.Constraint("Vertical", 22, 3, 35, 3),
    Sketcher.Constraint("Vertical", 19, 3, 36, 3),
    Sketcher.Constraint("Vertical", 23, 3, 40, 3),
    Sketcher.Constraint("Vertical", 24, 3, 41, 3),
    Sketcher.Constraint("Vertical", 45, 3, 64, 3),
    Sketcher.Constraint("Vertical", 54, 3, 67, 3),
    Sketcher.Constraint("Vertical", 55, 3, 68, 3),
    Sketcher.Constraint("Vertical", 49, 3, 70, 3),
    Sketcher.Constraint("Vertical", 53, 3, 74, 3),
    Sketcher.Constraint("Vertical", 56, 3, 77, 3),
    Sketcher.Constraint("Vertical", 57, 3, 78, 3),
    Sketcher.Constraint("Vertical", 58, 3, 79, 3),
    Sketcher.Constraint("Equal", 7, 59),
    Sketcher.Constraint("Equal", 20, 27),
    Sketcher.Constraint("Diameter", 4, 5.0),
    Sketcher.Constraint("Diameter", 81, 25.0),
    Sketcher.Constraint("Diameter", 80, 4.2),
    Sketcher.Constraint("Diameter", 21, 3.18),
    Sketcher.Constraint("DistanceX", 5, 2, 5, 1, 33.0),
    Sketcher.Constraint("DistanceY", 6, 1, 6, 2, 90.0),
    Sketcher.Constraint("DistanceX", 1, 1, 1, 2, 249.6),
    Sketcher.Constraint("DistanceY", 0, 2, 0, 1, 350.4),
    Sketcher.Constraint("DistanceX", -1, 1, 4, 3, 4.0),
    Sketcher.Constraint("DistanceY", 80, 3, -1, 1, 14.0),
    Sketcher.Constraint("DistanceY", 5, 2, -1, 1, 195.0),
    Sketcher.Constraint("DistanceY", 4, 3, -1, 1, 175.5),
    Sketcher.Constraint("DistanceY", 25, 3, -1, 1, 124.5),
    Sketcher.Constraint("DistanceX", -1, 1, 58, 3, 245.6),
    Sketcher.Constraint("DistanceX", -1, 1, 80, 3, 104.3),
    Sketcher.Constraint("DistanceX", -1, 1, 81, 3, 124.8),
    Sketcher.Constraint("DistanceX", -1, 1, 82, 3, 145.3),
    Sketcher.Constraint("DistanceX", -1, 1, 11, 1, 75.2),
    Sketcher.Constraint("DistanceX", -1, 1, 15, 1, 87.9),
    Sketcher.Constraint("DistanceX", -1, 1, 47, 1, 161.7),
    Sketcher.Constraint("DistanceX", -1, 1, 51, 1, 174.4),
    Sketcher.Constraint("Radius", 17, 1.5875),
    Sketcher.Constraint("DistanceX", -1, 1, 17, 3, 102.19),
    Sketcher.Constraint("DistanceX", -1, 1, 21, 3, 70.44),
    Sketcher.Constraint("DistanceX", -1, 1, 22, 3, 83.14),
    Sketcher.Constraint("DistanceX", -1, 1, 23, 3, 95.84),
    Sketcher.Constraint("DistanceX", -1, 1, 24, 3, 108.54),
    Sketcher.Constraint("DistanceX", -1, 1, 43, 3, 147.41),
    Sketcher.Constraint("DistanceX", -1, 1, 54, 3, 141.06),
    Sketcher.Constraint("DistanceX", -1, 1, 55, 3, 153.76),
    Sketcher.Constraint("DistanceX", -1, 1, 56, 3, 166.46),
    Sketcher.Constraint("DistanceX", -1, 1, 57, 3, 179.16),
    Sketcher.Constraint("DistanceX", -1, 1, 5, 2, 31.44),
    Sketcher.Constraint("DistanceX", -1, 1, 59, 2, 185.16),
    Sketcher.Constraint("DistanceY", 9, 3, -1, 1, 165.625),
    Sketcher.Constraint("DistanceY", 26, 3, -1, 1, 134.375),
    Sketcher.Constraint("DistanceY", 45, 3, -1, 1, 170.625),
    Sketcher.Constraint("Radius", 45, 14.765224),
])
pad1 = body.newObject("PartDesign::Pad", "Pad")
pad1.Profile = sketch1
pad1.Length = 5

# Sketch on XZ plane
sketch2 = body.newObject("Sketcher::SketchObject", "Sketch001")
sketch2.AttachmentSupport = (doc.getObject("XZ_Plane"), [""])
sketch2.MapMode = "FlatFace"
sketch2.AttachmentOffset = App.Placement(Vector(0, 0, 350.4), App.Rotation())
add_polygon(sketch2, [(0, 5), (0, 0), (249.6, 0), (249.6, 5)])  # lines 0-3
sketch2.addConstraint([
    Sketcher.Constraint("Vertical", 0),
    Sketcher.Constraint("Horizontal", 1),
    Sketcher.Constraint("Vertical", 2),
    Sketcher.Constraint("Horizontal", 3),
    Sketcher.Constraint("Coincident", 0, 2, -1, 1),
    Sketcher.Constraint("DistanceY", 0, 2, 0, 1, 5.0),
    Sketcher.Constraint("DistanceX", 1, 1, 1, 2, 249.6),
])
pocket1 = body.newObject("PartDesign::Pocket", "Pocket")
pocket1.Profile = sketch2
pocket1.Length = 83

# Sketch on XY plane
sketch3 = body.newObject("Sketcher::SketchObject", "Sketch002")
sketch3.AttachmentSupport = (doc.getObject("XY_Plane"), [""])
sketch3.MapMode = "FlatFace"
sketch3.AttachmentOffset = App.Placement(Vector(0, 0, 5), App.Rotation())
sketch3.addGeometry([
    Part.LineSegment(Vector(0, -100, 0), Vector(43.40286, -100, 0)),  # 0
    Part.ArcOfCircle(Part.Circle(Vector(43.40286, -37.5, 0), Vector(0, 0, 1), 62.5), math.radians(-90), math.radians(90)),  # 1
    Part.LineSegment(Vector(43.40286, 25, 0), Vector(0, 25, 0)),  # 2
    Part.LineSegment(Vector(0, 25, 0), Vector(0, -100, 0)),  # 3
    Part.LineSegment(Vector(249.6, 25, 0), Vector(206.19714, 25, 0)),  # 4
    Part.ArcOfCircle(Part.Circle(Vector(206.19714, -37.5, 0), Vector(0, 0, 1), 62.5), math.radians(90), math.radians(270)),  # 5
    Part.LineSegment(Vector(206.19714, -100, 0), Vector(249.6, -100, 0)),  # 6
    Part.LineSegment(Vector(249.6, -100, 0), Vector(249.6, 25, 0)),  # 7
], False)
sketch3.addConstraint([
    Sketcher.Constraint("Tangent", 0, 2, 1, 1),
    Sketcher.Constraint("Tangent", 1, 2, 2, 1),
    Sketcher.Constraint("Coincident", 2, 2, 3, 1),
    Sketcher.Constraint("Coincident", 3, 2, 0, 1),
    Sketcher.Constraint("Tangent", 4, 2, 5, 1),
    Sketcher.Constraint("Tangent", 5, 2, 6, 1),
    Sketcher.Constraint("Coincident", 6, 2, 7, 1),
    Sketcher.Constraint("Coincident", 7, 2, 4, 1),
    Sketcher.Constraint("Horizontal", 0),
    Sketcher.Constraint("Horizontal", 2),
    Sketcher.Constraint("Vertical", 3),
    Sketcher.Constraint("Horizontal", 4),
    Sketcher.Constraint("Horizontal", 6),
    Sketcher.Constraint("Vertical", 7),
    Sketcher.Constraint("Equal", 1, 5),
    Sketcher.Constraint("PointOnObject", 2, 2, -2),
    Sketcher.Constraint("Horizontal", 1, 3, 5, 3),
    Sketcher.Constraint("Equal", 2, 4),
    Sketcher.Constraint("Radius", 1, 62.5),
    Sketcher.Constraint("DistanceY", 0, 2, -1, 1, 100.0),
    Sketcher.Constraint("DistanceX", -1, 1, 6, 2, 249.6),
    Sketcher.Constraint("DistanceX", 0, 1, 0, 2, 43.40286),
])
pocket2 = body.newObject("PartDesign::Pocket", "Pocket001")
pocket2.Profile = sketch3
pocket2.Type = "ThroughAll"

doc.recompute()
